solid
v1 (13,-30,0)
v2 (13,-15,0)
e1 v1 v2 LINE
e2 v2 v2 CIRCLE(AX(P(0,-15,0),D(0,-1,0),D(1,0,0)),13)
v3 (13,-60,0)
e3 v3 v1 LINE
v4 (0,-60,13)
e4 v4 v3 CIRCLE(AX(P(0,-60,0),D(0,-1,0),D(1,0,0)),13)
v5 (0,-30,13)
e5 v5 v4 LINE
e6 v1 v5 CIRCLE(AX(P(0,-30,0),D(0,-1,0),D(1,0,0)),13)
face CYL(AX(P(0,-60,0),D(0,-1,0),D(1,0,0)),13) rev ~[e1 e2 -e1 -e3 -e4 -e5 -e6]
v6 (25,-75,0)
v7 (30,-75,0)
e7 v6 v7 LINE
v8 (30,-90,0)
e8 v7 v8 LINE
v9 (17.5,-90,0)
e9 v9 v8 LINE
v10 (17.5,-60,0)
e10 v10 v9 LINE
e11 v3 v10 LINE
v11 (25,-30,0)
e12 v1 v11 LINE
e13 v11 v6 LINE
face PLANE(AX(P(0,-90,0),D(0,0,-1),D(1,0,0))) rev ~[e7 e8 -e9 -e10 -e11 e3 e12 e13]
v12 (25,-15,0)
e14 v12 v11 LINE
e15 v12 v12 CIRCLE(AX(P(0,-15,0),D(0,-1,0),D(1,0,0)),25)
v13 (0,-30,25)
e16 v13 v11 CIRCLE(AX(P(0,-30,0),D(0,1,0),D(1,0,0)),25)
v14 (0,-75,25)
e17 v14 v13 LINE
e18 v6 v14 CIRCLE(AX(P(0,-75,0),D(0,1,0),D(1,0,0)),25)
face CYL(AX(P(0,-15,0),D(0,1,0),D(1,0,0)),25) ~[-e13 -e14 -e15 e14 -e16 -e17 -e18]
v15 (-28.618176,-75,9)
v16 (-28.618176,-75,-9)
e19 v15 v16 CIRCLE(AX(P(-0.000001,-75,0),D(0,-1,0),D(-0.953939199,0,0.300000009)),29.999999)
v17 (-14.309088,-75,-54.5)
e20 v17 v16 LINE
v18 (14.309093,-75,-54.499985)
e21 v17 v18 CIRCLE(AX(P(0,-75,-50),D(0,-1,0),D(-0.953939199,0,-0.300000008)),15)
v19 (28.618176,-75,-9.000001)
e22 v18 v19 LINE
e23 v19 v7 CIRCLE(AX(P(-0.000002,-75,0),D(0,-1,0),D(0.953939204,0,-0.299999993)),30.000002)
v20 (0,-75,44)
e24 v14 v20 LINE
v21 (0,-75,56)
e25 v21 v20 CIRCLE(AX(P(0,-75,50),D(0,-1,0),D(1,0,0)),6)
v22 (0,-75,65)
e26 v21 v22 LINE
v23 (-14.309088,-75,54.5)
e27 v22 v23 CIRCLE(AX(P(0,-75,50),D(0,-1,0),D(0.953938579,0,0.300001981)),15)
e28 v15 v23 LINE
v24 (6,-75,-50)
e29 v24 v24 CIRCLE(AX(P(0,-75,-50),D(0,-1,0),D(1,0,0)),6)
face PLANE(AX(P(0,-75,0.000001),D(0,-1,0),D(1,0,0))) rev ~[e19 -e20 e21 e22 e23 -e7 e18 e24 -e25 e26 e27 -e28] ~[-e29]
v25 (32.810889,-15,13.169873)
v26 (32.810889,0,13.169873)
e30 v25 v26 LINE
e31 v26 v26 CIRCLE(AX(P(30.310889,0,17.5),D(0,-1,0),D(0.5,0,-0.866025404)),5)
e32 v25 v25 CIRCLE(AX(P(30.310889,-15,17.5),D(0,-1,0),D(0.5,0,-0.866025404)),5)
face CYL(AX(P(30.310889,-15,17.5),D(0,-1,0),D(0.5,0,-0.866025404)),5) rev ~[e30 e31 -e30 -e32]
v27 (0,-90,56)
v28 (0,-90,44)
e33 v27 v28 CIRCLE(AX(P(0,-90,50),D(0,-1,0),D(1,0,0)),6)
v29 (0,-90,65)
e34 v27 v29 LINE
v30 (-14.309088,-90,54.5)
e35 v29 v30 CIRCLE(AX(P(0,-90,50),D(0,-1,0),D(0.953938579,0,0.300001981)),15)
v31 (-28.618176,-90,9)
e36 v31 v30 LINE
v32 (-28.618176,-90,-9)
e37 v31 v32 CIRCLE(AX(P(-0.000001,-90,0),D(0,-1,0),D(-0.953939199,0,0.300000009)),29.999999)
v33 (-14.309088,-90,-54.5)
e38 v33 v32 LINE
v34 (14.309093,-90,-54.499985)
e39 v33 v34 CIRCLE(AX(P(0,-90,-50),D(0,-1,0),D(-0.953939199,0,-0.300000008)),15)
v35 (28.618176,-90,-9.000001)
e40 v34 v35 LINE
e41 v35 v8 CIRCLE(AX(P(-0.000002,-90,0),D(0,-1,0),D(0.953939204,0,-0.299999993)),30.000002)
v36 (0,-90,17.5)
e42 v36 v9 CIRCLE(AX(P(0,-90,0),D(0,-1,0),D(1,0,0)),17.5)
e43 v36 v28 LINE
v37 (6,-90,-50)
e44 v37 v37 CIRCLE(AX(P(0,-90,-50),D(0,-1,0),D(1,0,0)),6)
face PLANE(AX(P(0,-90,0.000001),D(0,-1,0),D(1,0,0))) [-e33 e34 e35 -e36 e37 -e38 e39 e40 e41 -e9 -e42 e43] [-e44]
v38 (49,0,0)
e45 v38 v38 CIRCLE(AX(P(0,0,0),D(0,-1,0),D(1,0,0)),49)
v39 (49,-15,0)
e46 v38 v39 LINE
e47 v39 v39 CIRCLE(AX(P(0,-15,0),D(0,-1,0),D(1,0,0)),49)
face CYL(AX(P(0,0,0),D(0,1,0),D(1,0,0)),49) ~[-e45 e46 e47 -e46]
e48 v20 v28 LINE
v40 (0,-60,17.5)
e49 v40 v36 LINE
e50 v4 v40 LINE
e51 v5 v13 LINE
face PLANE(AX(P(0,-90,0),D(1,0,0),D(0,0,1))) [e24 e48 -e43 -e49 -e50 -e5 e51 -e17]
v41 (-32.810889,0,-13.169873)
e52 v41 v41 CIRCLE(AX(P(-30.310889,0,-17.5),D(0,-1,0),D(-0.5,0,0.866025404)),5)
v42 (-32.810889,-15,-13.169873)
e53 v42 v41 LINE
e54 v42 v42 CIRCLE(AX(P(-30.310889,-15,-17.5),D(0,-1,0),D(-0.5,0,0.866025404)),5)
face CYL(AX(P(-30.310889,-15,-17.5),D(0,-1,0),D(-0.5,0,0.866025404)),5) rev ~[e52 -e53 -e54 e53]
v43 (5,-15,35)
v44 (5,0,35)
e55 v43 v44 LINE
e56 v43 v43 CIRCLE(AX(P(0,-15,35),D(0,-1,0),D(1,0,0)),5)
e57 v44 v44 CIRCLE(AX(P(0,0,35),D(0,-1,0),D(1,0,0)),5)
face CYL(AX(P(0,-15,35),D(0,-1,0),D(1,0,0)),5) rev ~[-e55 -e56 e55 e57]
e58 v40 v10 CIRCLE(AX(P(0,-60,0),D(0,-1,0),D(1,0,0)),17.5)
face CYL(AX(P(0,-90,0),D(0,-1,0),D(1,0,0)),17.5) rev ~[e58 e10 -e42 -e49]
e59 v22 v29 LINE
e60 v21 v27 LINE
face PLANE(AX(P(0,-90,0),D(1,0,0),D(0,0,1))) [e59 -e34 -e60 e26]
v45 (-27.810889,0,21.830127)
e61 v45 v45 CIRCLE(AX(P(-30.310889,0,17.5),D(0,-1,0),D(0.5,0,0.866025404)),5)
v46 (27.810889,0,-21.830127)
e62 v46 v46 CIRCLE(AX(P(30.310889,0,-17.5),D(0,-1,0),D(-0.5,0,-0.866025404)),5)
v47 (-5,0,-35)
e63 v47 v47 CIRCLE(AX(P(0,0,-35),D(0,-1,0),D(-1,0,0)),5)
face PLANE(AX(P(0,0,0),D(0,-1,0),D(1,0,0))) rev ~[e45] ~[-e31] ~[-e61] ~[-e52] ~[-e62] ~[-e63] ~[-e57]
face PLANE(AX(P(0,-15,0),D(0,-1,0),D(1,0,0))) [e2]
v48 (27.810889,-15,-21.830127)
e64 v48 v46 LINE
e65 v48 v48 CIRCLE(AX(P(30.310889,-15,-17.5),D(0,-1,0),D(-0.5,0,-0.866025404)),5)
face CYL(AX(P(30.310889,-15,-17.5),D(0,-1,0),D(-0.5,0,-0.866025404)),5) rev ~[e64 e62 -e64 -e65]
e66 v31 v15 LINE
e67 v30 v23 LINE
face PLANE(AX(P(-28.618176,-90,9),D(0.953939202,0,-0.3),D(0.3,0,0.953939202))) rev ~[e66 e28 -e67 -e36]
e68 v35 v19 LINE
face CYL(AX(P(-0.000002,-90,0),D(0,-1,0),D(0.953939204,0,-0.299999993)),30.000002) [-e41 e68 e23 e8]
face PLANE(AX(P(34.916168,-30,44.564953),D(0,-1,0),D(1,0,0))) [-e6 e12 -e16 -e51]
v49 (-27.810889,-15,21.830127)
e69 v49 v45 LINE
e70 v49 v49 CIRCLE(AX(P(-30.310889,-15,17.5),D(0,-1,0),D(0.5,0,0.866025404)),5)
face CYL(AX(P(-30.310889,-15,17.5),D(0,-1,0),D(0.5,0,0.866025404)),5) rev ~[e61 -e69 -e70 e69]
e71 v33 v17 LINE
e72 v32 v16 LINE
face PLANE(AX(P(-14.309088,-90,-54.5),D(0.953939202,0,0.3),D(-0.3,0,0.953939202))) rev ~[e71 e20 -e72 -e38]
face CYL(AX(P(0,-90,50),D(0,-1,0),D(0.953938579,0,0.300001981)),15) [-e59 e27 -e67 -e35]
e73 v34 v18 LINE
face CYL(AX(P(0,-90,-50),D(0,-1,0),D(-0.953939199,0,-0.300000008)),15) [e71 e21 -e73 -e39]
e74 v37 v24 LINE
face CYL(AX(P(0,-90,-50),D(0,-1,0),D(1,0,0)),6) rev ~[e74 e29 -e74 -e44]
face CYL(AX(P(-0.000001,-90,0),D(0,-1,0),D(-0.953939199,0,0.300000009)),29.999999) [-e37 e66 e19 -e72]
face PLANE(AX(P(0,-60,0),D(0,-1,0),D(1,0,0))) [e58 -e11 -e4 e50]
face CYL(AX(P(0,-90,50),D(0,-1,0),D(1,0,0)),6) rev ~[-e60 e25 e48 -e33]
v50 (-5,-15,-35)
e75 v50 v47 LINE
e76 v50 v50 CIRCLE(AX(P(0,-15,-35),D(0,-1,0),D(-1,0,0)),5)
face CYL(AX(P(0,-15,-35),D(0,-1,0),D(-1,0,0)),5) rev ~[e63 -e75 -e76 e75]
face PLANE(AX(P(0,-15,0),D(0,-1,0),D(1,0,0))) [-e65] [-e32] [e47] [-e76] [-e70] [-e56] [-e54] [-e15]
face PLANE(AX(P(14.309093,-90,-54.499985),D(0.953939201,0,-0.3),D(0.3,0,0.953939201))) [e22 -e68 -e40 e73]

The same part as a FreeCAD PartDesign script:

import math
import FreeCAD as App
import Part
import Sketcher
Q = App.Units.Quantity


def add_polygon(sketch, points):
    """Adds a closed chain of lines whose ends are joined by coincident constraints."""
    first, n = sketch.GeometryCount, len(points)
    for a, b in zip(points, points[1:] + points[:1]):
        sketch.addGeometry(Part.LineSegment(App.Vector(*a, 0), App.Vector(*b, 0)), False)
    for i in range(n):
        sketch.addConstraint(Sketcher.Constraint("Coincident", first + i, 2, first + (i + 1) % n, 1))

doc = App.newDocument("Part")
params = doc.addObject("Spreadsheet::Sheet", "Params")
for row, (alias, value) in enumerate([
    ("sketch1_diameter", "98 mm"),
    ("pad1_length", "15 mm"),
    ("sketch2_diameter", "10 mm"),
    ("sketch3_diameter", "50 mm"),
    ("pad2_length", "75 mm"),
    ("sketch4_diameter", "35 mm"),
    ("pocket2_length", "30 mm"),
    ("sketch5_diameter", "26 mm"),
    ("pocket3_length", "45 mm"),
    ("sketch6_diameter", "12 mm"),
    ("sketch6_diameter2", "35 mm"),
    ("sketch6_radius", "29.999999 mm"),
    ("sketch6_radius2", "15 mm"),
    ("pad3_length", "15 mm"),
    ("pocket4_length", "60 mm"),
], start=1):
    params.set(f"A{row}", alias)
    params.set(f"B{row}", "=" + value)
    params.setAlias(f"B{row}", alias)

body = doc.addObject("PartDesign::Body", "Body")

# Sketch on XZ plane
sketch1 = doc.addObject("Sketcher::SketchObject", "Sketch")
body.addObject(sketch1)
sketch1.AttachmentSupport = (doc.XZ_Plane, [""])
sketch1.MapMode = "FlatFace"
sketch1.addGeometry(Part.Circle(App.Vector(0, 0, 0), App.Vector(0, 0, 1), 49), False)
sketch1.addConstraint([
    Sketcher.Constraint("Coincident", 0, 3, -1, 1),
    Sketcher.Constraint("Diameter", 0, Q("98 mm")),
])
sketch1.setExpression("Constraints[1]", "Params.sketch1_diameter")
pad1 = doc.addObject("PartDesign::Pad", "Pad")
body.addObject(pad1)
pad1.Profile = sketch1
pad1.setExpression("Length", "Params.pad1_length")

# Sketch on XZ plane
sketch2 = doc.addObject("Sketcher::SketchObject", "Sketch001")
body.addObject(sketch2)
sketch2.AttachmentSupport = (doc.XZ_Plane, [""])
sketch2.MapMode = "FlatFace"
sketch2.AttachmentOffset = App.Placement(App.Vector(0, 0, 15), App.Rotation())
sketch2.addGeometry(Part.Circle(App.Vector(0, 35, 0), App.Vector(0, 0, 1), 5), False)
sketch2.addConstraint([
    Sketcher.Constraint("PointOnObject", 0, 3, -2),
    Sketcher.Constraint("Diameter", 0, Q("10 mm")),
    Sketcher.Constraint("DistanceY", -1, 1, 0, 3, Q("35 mm")),
])
sketch2.setExpression("Constraints[1]", "Params.sketch2_diameter")
pocket1 = doc.addObject("PartDesign::Pocket", "Pocket")
body.addObject(pocket1)
pocket1.Profile = sketch2
pocket1.Type = "ThroughAll"
doc.recompute()

polarpattern = doc.addObject("PartDesign::PolarPattern", "PolarPattern")
body.addObject(polarpattern)
polarpattern.Originals = [pocket1]
polarpattern.Axis = (doc.Y_Axis, [""])
polarpattern.Angle = 360
polarpattern.Occurrences = 6
body.Tip = polarpattern

# Sketch on XZ plane
sketch3 = doc.addObject("Sketcher::SketchObject", "Sketch002")
body.addObject(sketch3)
sketch3.AttachmentSupport = (doc.XZ_Plane, [""])
sketch3.MapMode = "FlatFace"
sketch3.AttachmentOffset = App.Placement(App.Vector(0, 0, 15), App.Rotation())
sketch3.addGeometry(Part.Circle(App.Vector(0, 0, 0), App.Vector(0, 0, 1), 25), False)
sketch3.addConstraint([
    Sketcher.Constraint("Coincident", 0, 3, -1, 1),
    Sketcher.Constraint("Diameter", 0, Q("50 mm")),
])
sketch3.setExpression("Constraints[1]", "Params.sketch3_diameter")
pad2 = doc.addObject("PartDesign::Pad", "Pad001")
body.addObject(pad2)
pad2.Profile = sketch3
pad2.setExpression("Length", "Params.pad2_length")

# Sketch on XZ plane
sketch4 = doc.addObject("Sketcher::SketchObject", "Sketch003")
body.addObject(sketch4)
sketch4.AttachmentSupport = (doc.XZ_Plane, [""])
sketch4.MapMode = "FlatFace"
sketch4.AttachmentOffset = App.Placement(App.Vector(0, 0, 90), App.Rotation())
sketch4.addGeometry(Part.Circle(App.Vector(0, 0, 0), App.Vector(0, 0, 1), 18), False)
sketch4.addConstraint([
    Sketcher.Constraint("Coincident", 0, 3, -1, 1),
    Sketcher.Constraint("Diameter", 0, Q("35 mm")),
])
sketch4.setExpression("Constraints[1]", "Params.sketch4_diameter")
pocket2 = doc.addObject("PartDesign::Pocket", "Pocket001")
body.addObject(pocket2)
pocket2.Profile = sketch4
pocket2.setExpression("Length", "Params.pocket2_length")

# Sketch on XZ plane
sketch5 = doc.addObject("Sketcher::SketchObject", "Sketch004")
body.addObject(sketch5)
sketch5.AttachmentSupport = (doc.XZ_Plane, [""])
sketch5.MapMode = "FlatFace"
sketch5.AttachmentOffset = App.Placement(App.Vector(0, 0, 60), App.Rotation())
sketch5.addGeometry(Part.Circle(App.Vector(0, 0, 0), App.Vector(0, 0, 1), 13), False)
sketch5.addConstraint([
    Sketcher.Constraint("Coincident", 0, 3, -1, 1),
    Sketcher.Constraint("Diameter", 0, Q("26 mm")),
])
sketch5.setExpression("Constraints[1]", "Params.sketch5_diameter")
pocket3 = doc.addObject("PartDesign::Pocket", "Pocket002")
body.addObject(pocket3)
pocket3.Profile = sketch5
pocket3.setExpression("Length", "Params.pocket3_length")

# Sketch on XZ plane
sketch6 = doc.addObject("Sketcher::SketchObject", "Sketch005")
body.addObject(sketch6)
sketch6.AttachmentSupport = (doc.XZ_Plane, [""])
sketch6.MapMode = "FlatFace"
sketch6.AttachmentOffset = App.Placement(App.Vector(0, 0, 90), App.Rotation())
sketch6.addGeometry([
    Part.ArcOfCircle(Part.Circle(App.Vector(0, 0, 0), App.Vector(0, 0, 1), 30), math.radians(163), math.radians(197)),  # 0
    Part.LineSegment(App.Vector(-29, -9, 0), App.Vector(-14, -54, 0)),  # 1
    Part.ArcOfCircle(Part.Circle(App.Vector(0, -50, 0), App.Vector(0, 0, 1), 15), math.radians(-163), math.radians(-17)),  # 2
    Part.LineSegment(App.Vector(14, -54, 0), App.Vector(29, -9, 0)),  # 3
    Part.ArcOfCircle(Part.Circle(App.Vector(0, 0, 0), App.Vector(0, 0, 1), 30), math.radians(-17), math.radians(17)),  # 4
    Part.LineSegment(App.Vector(29, 9, 0), App.Vector(14, 55, 0)),  # 5
    Part.ArcOfCircle(Part.Circle(App.Vector(0, 50, 0), App.Vector(0, 0, 1), 15), math.radians(17), math.radians(163)),  # 6
    Part.LineSegment(App.Vector(-14, 54, 0), App.Vector(-29, 9, 0)),  # 7
    Part.Circle(App.Vector(0, -50, 0), App.Vector(0, 0, 1), 6),  # 8
    Part.Circle(App.Vector(0, 0, 0), App.Vector(0, 0, 1), 18),  # 9
    Part.Circle(App.Vector(0, 50, 0), App.Vector(0, 0, 1), 6),  # 10
], False)
sketch6.addConstraint([
    Sketcher.Constraint("Tangent", 0, 2, 1, 1),
    Sketcher.Constraint("Tangent", 1, 2, 2, 1),
    Sketcher.Constraint("Tangent", 2, 2, 3, 1),
    Sketcher.Constraint("Tangent", 3, 2, 4, 1),
    Sketcher.Constraint("Tangent", 4, 2, 5, 1),
    Sketcher.Constraint("Coincident", 5, 2, 6, 1),
    Sketcher.Constraint("Tangent", 6, 2, 7, 1),
    Sketcher.Constraint("Tangent", 7, 2, 0, 1),
    Sketcher.Constraint("Coincident", 0, 3, -1, 1),
    Sketcher.Constraint("Coincident", 4, 3, -1, 1),
    Sketcher.Constraint("Coincident", 9, 3, -1, 1),
    Sketcher.Constraint("Coincident", 8, 3, 2, 3),
    Sketcher.Constraint("Coincident", 10, 3, 6, 3),
    Sketcher.Constraint("Equal", 2, 6),
    Sketcher.Constraint("Equal", 8, 10),
    Sketcher.Constraint("Symmetric", 2, 3, 6, 3, -1, 1),
    Sketcher.Constraint("Symmetric", 0, 2, 3, 2, -2),
    Sketcher.Constraint("Diameter", 8, Q("12 mm")),
    Sketcher.Constraint("Diameter", 9, Q("35 mm")),
    Sketcher.Constraint("Radius", 0, Q("29.999999 mm")),
    Sketcher.Constraint("Radius", 2, Q("15 mm")),
    Sketcher.Constraint("DistanceY", 2, 3, -1, 1, Q("50 mm")),
    Sketcher.Constraint("Distance", 5, Q("47.696992 mm")),
])
sketch6.setExpression("Constraints[17]", "Params.sketch6_diameter")
sketch6.setExpression("Constraints[18]", "Params.sketch6_diameter2")
sketch6.setExpression("Constraints[19]", "Params.sketch6_radius")
sketch6.setExpression("Constraints[20]", "Params.sketch6_radius2")
pad3 = doc.addObject("PartDesign::Pad", "Pad002")
body.addObject(pad3)
pad3.Profile = sketch6
pad3.setExpression("Length", "Params.pad3_length")
pad3.Reversed = True

# Sketch on XZ plane
sketch7 = doc.addObject("Sketcher::SketchObject", "Sketch006")
body.addObject(sketch7)
sketch7.AttachmentSupport = (doc.XZ_Plane, [""])
sketch7.MapMode = "FlatFace"
sketch7.AttachmentOffset = App.Placement(App.Vector(0, 0, 90), App.Rotation())
add_polygon(sketch7, [(0, 89), (0, 0), (70, 0), (70, 89)])  # lines 0-3
sketch7.addConstraint([
    Sketcher.Constraint("Vertical", 0),
    Sketcher.Constraint("Horizontal", 1),
    Sketcher.Constraint("Vertical", 2),
    Sketcher.Constraint("Horizontal", 3),
    Sketcher.Constraint("Coincident", 0, 2, -1, 1),
    Sketcher.Constraint("DistanceX", 1, 1, 1, 2, Q("69.832336 mm")),
    Sketcher.Constraint("DistanceY", 0, 2, 0, 1, Q("89.129906 mm")),
])
pocket4 = doc.addObject("PartDesign::Pocket", "Pocket003")
body.addObject(pocket4)
pocket4.Profile = sketch7
pocket4.setExpression("Length", "Params.pocket4_length")

doc.recompute()
